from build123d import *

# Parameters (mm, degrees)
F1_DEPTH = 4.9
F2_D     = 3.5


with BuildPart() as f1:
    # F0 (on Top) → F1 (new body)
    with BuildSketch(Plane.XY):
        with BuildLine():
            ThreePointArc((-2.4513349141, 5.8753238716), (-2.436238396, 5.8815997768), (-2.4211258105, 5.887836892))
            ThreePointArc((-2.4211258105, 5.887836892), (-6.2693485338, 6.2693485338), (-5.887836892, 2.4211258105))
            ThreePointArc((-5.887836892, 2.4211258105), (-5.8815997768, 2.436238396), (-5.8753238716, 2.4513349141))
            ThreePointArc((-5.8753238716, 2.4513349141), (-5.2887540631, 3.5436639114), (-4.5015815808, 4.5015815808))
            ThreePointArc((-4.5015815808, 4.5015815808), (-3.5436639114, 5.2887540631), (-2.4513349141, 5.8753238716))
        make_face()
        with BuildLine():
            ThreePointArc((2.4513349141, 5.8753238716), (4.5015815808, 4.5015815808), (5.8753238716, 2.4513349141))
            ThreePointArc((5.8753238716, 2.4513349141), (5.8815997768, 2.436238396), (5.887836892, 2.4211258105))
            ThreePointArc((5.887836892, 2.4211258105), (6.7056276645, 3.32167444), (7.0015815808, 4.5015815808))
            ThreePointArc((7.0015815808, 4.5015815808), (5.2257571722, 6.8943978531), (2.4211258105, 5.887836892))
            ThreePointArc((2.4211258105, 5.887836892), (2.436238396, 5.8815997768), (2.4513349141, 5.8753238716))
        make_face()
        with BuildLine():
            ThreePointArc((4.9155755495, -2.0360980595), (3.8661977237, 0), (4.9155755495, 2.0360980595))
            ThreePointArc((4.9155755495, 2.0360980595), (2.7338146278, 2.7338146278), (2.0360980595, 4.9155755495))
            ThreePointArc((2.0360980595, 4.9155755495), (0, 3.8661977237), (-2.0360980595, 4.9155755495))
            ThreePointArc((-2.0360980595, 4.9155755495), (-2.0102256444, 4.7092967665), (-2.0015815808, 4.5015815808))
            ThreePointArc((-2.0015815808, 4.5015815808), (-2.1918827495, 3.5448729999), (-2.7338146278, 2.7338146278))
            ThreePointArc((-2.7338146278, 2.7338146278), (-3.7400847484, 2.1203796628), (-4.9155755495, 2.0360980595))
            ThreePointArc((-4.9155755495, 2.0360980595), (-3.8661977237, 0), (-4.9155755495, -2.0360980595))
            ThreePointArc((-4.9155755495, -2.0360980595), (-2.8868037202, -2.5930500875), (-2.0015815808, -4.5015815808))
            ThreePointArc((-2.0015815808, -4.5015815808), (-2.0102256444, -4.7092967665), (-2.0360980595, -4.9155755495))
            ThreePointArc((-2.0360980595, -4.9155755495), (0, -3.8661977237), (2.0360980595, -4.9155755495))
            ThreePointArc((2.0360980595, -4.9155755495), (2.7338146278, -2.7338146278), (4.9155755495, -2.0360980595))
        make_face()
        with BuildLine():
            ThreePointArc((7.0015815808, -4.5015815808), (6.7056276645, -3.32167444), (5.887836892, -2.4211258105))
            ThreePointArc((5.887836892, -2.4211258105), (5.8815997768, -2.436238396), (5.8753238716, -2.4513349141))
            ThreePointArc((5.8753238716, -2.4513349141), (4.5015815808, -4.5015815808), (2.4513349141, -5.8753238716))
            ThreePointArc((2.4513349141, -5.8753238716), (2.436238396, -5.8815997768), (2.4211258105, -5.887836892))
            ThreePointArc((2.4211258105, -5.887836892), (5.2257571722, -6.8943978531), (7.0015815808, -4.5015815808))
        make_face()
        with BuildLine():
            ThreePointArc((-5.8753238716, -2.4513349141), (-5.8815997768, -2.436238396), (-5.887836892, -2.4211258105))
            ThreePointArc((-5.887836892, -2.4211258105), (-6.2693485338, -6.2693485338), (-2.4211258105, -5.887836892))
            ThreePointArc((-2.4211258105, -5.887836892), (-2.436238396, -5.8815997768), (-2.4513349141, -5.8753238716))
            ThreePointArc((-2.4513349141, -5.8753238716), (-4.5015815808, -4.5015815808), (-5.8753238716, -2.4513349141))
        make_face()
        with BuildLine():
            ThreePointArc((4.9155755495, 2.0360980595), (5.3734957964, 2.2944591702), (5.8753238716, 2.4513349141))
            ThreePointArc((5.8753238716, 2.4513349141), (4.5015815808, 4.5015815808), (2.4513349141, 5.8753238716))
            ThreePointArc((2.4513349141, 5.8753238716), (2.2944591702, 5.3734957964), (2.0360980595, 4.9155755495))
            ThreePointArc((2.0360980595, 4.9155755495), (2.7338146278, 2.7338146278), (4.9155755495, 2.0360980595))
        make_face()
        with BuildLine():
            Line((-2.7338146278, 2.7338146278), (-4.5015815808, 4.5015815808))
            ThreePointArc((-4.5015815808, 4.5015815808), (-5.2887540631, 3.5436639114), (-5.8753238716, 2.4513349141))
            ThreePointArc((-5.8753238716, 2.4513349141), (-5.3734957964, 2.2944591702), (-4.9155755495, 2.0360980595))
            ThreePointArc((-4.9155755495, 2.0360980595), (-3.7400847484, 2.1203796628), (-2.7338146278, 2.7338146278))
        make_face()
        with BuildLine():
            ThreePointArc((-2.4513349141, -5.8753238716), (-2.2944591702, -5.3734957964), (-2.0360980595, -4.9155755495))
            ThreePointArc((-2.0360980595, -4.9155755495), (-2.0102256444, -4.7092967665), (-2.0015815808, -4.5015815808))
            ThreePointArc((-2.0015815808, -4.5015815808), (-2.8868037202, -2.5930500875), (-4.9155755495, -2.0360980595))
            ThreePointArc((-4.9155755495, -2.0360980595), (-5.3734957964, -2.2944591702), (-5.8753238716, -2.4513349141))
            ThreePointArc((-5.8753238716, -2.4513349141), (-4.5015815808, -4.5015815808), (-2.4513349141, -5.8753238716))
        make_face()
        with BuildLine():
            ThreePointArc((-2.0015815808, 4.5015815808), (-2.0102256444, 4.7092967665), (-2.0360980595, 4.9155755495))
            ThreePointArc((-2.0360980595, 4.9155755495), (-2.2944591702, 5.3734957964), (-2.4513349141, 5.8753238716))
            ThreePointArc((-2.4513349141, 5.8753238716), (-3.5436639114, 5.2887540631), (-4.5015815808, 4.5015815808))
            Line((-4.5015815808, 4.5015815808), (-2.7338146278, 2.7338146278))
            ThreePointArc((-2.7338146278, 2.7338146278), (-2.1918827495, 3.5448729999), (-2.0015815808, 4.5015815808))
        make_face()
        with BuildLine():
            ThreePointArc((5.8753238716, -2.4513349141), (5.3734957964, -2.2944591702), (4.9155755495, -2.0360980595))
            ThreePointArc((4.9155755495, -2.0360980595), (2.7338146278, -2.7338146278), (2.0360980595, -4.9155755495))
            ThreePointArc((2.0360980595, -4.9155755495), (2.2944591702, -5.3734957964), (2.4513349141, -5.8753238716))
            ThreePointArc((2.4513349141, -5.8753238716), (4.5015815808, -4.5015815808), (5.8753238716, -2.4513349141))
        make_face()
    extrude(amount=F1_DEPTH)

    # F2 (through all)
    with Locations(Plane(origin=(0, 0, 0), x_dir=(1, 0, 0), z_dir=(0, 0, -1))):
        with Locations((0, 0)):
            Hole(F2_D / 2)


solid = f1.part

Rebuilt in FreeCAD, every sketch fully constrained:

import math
import FreeCAD as App
import Part
import Sketcher
from FreeCAD import Vector
Q = App.Units.Quantity

doc = App.newDocument("Part")
body = doc.addObject("PartDesign::Body", "Body")

sketch1 = body.newObject("Sketcher::SketchObject", "Sketch")
sketch1.AttachmentSupport = (doc.getObject("XY_Plane"), [""])
sketch1.MapMode = "FlatFace"
sketch1.addGeometry([
    Part.ArcOfCircle(Part.Circle(Vector(0.000005, -0.000013, 0), Vector(0, 0, 1), 6.366211), math.radians(112.352859), math.radians(112.647141)),
    Part.ArcOfCircle(Part.Circle(Vector(-4.501582, 4.501582, 0), Vector(0, 0, 1), 2.5), math.radians(33.676429), math.radians(236.323571)),
    Part.ArcOfCircle(Part.Circle(Vector(0.000013, -0.000005, 0), Vector(0, 0, 1), 6.366211), math.radians(157.352859), math.radians(157.647141)),
    Part.ArcOfCircle(Part.Circle(Vector(-6.366198, 0, 0), Vector(0, 0, 1), 2.5), math.radians(54.531951), math.radians(78.676429)),
    Part.ArcOfCircle(Part.Circle(Vector(-6.366198, 0, 0), Vector(0, 0, 1), 2.5), math.radians(-54.531951), math.radians(54.531951)),
    Part.ArcOfCircle(Part.Circle(Vector(-6.366198, 0, 0), Vector(0, 0, 1), 2.5), math.radians(-78.676429), math.radians(-54.531951)),
    Part.ArcOfCircle(Part.Circle(Vector(0.000013, 0.000005, 0), Vector(0, 0, 1), 6.366211), math.radians(-157.647141), math.radians(-157.352859)),
    Part.ArcOfCircle(Part.Circle(Vector(-4.501582, -4.501582, 0), Vector(0, 0, 1), 2.5), math.radians(123.676429), math.radians(326.323571)),
    Part.ArcOfCircle(Part.Circle(Vector(0.000005, 0.000013, 0), Vector(0, 0, 1), 6.366211), math.radians(-112.647141), math.radians(-112.352859)),
    Part.ArcOfCircle(Part.Circle(Vector(0, -6.366198, 0), Vector(0, 0, 1), 2.5), math.radians(144.531951), math.radians(168.676429)),
    Part.ArcOfCircle(Part.Circle(Vector(0, -6.366198, 0), Vector(0, 0, 1), 2.5), math.radians(35.468049), math.radians(144.531951)),
    Part.ArcOfCircle(Part.Circle(Vector(0, -6.366198, 0), Vector(0, 0, 1), 2.5), math.radians(11.323571), math.radians(35.468049)),
    Part.ArcOfCircle(Part.Circle(Vector(-0.000005, 0.000013, 0), Vector(0, 0, 1), 6.366211), math.radians(-67.647141), math.radians(-67.352859)),
    Part.ArcOfCircle(Part.Circle(Vector(4.501582, -4.501582, 0), Vector(0, 0, 1), 2.5), math.radians(-146.323571), math.radians(0)),
    Part.ArcOfCircle(Part.Circle(Vector(4.501582, -4.501582, 0), Vector(0, 0, 1), 2.5), math.radians(0), math.radians(56.323571)),
    Part.ArcOfCircle(Part.Circle(Vector(-0.000013, 0.000005, 0), Vector(0, 0, 1), 6.366211), math.radians(-22.647141), math.radians(-22.352859)),
    Part.ArcOfCircle(Part.Circle(Vector(6.366198, 0, 0), Vector(0, 0, 1), 2.5), math.radians(-125.468049), math.radians(-101.323571)),
    Part.ArcOfCircle(Part.Circle(Vector(6.366198, 0, 0), Vector(0, 0, 1), 2.5), math.radians(125.468049), math.radians(234.531951)),
    Part.ArcOfCircle(Part.Circle(Vector(6.366198, 0, 0), Vector(0, 0, 1), 2.5), math.radians(101.323571), math.radians(125.468049)),
    Part.ArcOfCircle(Part.Circle(Vector(-0.000013, -0.000005, 0), Vector(0, 0, 1), 6.366211), math.radians(22.352859), math.radians(22.647141)),
    Part.ArcOfCircle(Part.Circle(Vector(4.501582, 4.501582, 0), Vector(0, 0, 1), 2.5), math.radians(-56.323571), math.radians(0)),
    Part.ArcOfCircle(Part.Circle(Vector(4.501582, 4.501582, 0), Vector(0, 0, 1), 2.5), math.radians(0), math.radians(146.323571)),
    Part.ArcOfCircle(Part.Circle(Vector(-0.000005, -0.000013, 0), Vector(0, 0, 1), 6.366211), math.radians(67.352859), math.radians(67.647141)),
    Part.ArcOfCircle(Part.Circle(Vector(0, 6.366198, 0), Vector(0, 0, 1), 2.5), math.radians(-35.468049), math.radians(-11.323571)),
    Part.ArcOfCircle(Part.Circle(Vector(0, 6.366198, 0), Vector(0, 0, 1), 2.5), math.radians(-144.531951), math.radians(-35.468049)),
    Part.ArcOfCircle(Part.Circle(Vector(0, 6.366198, 0), Vector(0, 0, 1), 2.5), math.radians(-168.676429), math.radians(-144.531951)),
], False)
sketch1.addConstraint([
    Sketcher.Constraint("Coincident", 0, 1, 1, 1),
    Sketcher.Constraint("Coincident", 1, 2, 2, 2),
    Sketcher.Constraint("Coincident", 2, 1, 3, 2),
    Sketcher.Constraint("Tangent", 3, 1, 4, 2),
    Sketcher.Constraint("Tangent", 4, 1, 5, 2),
    Sketcher.Constraint("Coincident", 5, 1, 6, 2),
    Sketcher.Constraint("Coincident", 6, 1, 7, 1),
    Sketcher.Constraint("Coincident", 7, 2, 8, 2),
    Sketcher.Constraint("Coincident", 8, 1, 9, 2),
    Sketcher.Constraint("Tangent", 9, 1, 10, 2),
    Sketcher.Constraint("Tangent", 10, 1, 11, 2),
    Sketcher.Constraint("Coincident", 11, 1, 12, 2),
    Sketcher.Constraint("Coincident", 12, 1, 13, 1),
    Sketcher.Constraint("Tangent", 13, 2, 14, 1),
    Sketcher.Constraint("Coincident", 14, 2, 15, 2),
    Sketcher.Constraint("Coincident", 15, 1, 16, 2),
    Sketcher.Constraint("Tangent", 16, 1, 17, 2),
    Sketcher.Constraint("Tangent", 17, 1, 18, 2),
    Sketcher.Constraint("Coincident", 18, 1, 19, 2),
    Sketcher.Constraint("Coincident", 19, 1, 20, 1),
    Sketcher.Constraint("Tangent", 20, 2, 21, 1),
    Sketcher.Constraint("Coincident", 21, 2, 22, 2),
    Sketcher.Constraint("Coincident", 22, 1, 23, 2),
    Sketcher.Constraint("Tangent", 23, 1, 24, 2),
    Sketcher.Constraint("Tangent", 24, 1, 25, 2),
    Sketcher.Constraint("Coincident", 25, 1, 0, 2),
    Sketcher.Constraint("Coincident", 5, 3, 3, 3),
    Sketcher.Constraint("Coincident", 11, 3, 9, 3),
    Sketcher.Constraint("Coincident", 18, 3, 16, 3),
    Sketcher.Constraint("Coincident", 25, 3, 23, 3),
    Sketcher.Constraint("Equal", 0, 2),
    Sketcher.Constraint("Equal", 1, 3),
    Sketcher.Constraint("Equal", 2, 6),
    Sketcher.Constraint("Equal", 5, 7),
    Sketcher.Constraint("Equal", 6, 8),
    Sketcher.Constraint("Equal", 7, 9),
    Sketcher.Constraint("Equal", 8, 12),
    Sketcher.Constraint("Equal", 11, 13),
    Sketcher.Constraint("Equal", 13, 14),
    Sketcher.Constraint("Equal", 12, 15),
    Sketcher.Constraint("Equal", 14, 16),
    Sketcher.Constraint("Equal", 15, 19),
    Sketcher.Constraint("Equal", 18, 20),
    Sketcher.Constraint("Equal", 20, 21),
    Sketcher.Constraint("Equal", 19, 22),
    Sketcher.Constraint("Equal", 21, 23),
    Sketcher.Constraint("Symmetric", 0, 3, 12, 3, -1, 1),
    Sketcher.Constraint("Symmetric", 1, 3, 13, 3, -1, 1),
    Sketcher.Constraint("Symmetric", 2, 3, 15, 3, -1, 1),
    Sketcher.Constraint("Symmetric", 3, 3, 16, 3, -1, 1),
    Sketcher.Constraint("Symmetric", 6, 3, 19, 3, -1, 1),
    Sketcher.Constraint("Symmetric", 7, 3, 20, 3, -1, 1),
    Sketcher.Constraint("Symmetric", 8, 3, 22, 3, -1, 1),
    Sketcher.Constraint("Symmetric", 9, 3, 23, 3, -1, 1),
    Sketcher.Constraint("Symmetric", 8, 3, 12, 3, -2),
    Sketcher.Constraint("Symmetric", 7, 3, 13, 3, -2),
    Sketcher.Constraint("Symmetric", 6, 3, 15, 3, -2),
    Sketcher.Constraint("Symmetric", 9, 1, 10, 1, -2),
    Sketcher.Constraint("Symmetric", 4, 1, 16, 1, -2),
    Sketcher.Constraint("Horizontal", 14, 3, 13, 2),
    Sketcher.Constraint("Horizontal", 3, 1, 17, 1),
    Sketcher.Constraint("Horizontal", 21, 3, 20, 2),
    Sketcher.Constraint("Horizontal", 23, 1, 24, 1),
    Sketcher.Constraint("Vertical", 3, 1, 4, 1),
    Sketcher.Constraint("Vertical", 10, 1, 23, 1),
    Sketcher.Constraint("Radius", 1, Q("2.5 mm")),
    Sketcher.Constraint("Radius", 0, Q("6.366211 mm")),
    Sketcher.Constraint("DistanceY", -1, 1, 3, 1, Q("2.036098 mm")),
    Sketcher.Constraint("DistanceX", 9, 1, -1, 1, Q("2.036098 mm")),
    Sketcher.Constraint("DistanceX", 1, 3, -1, 1, Q("4.501582 mm")),
    Sketcher.Constraint("DistanceY", -1, 1, 1, 3, Q("4.501582 mm")),
    Sketcher.Constraint("DistanceX", 3, 3, 2, 3, Q("6.36621 mm")),
    Sketcher.Constraint("DistanceY", 7, 3, 0, 3, Q("4.501569 mm")),
    Sketcher.Constraint("DistanceY", 9, 3, 8, 3, Q("6.36621 mm")),
    Sketcher.Constraint("DistanceX", 2, 3, 13, 3, Q("4.501569 mm")),
    Sketcher.Constraint("DistanceY", 0, 1, 25, 3, Q("0.478361 mm")),
    Sketcher.Constraint("DistanceX", 3, 3, 1, 2, Q("0.478361 mm")),
])
pad1 = body.newObject("PartDesign::Pad", "Pad")
pad1.Profile = sketch1
pad1.Length = 4.9

sketch2 = body.newObject("Sketcher::SketchObject", "Sketch001")
sketch2.AttachmentSupport = (doc.getObject("XY_Plane"), [""])
sketch2.MapMode = "FlatFace"
sketch2.addGeometry(Part.Circle(Vector(0, 0, 0), Vector(0, 0, 1), 1.8), False)
sketch2.addConstraint([
    Sketcher.Constraint("Coincident", 0, 3, -1, 1),
    Sketcher.Constraint("Diameter", 0, Q("3.5 mm")),
])
doc.recompute()
hole = body.newObject("PartDesign::Hole", "Hole")
hole.Profile = sketch2
hole.ThreadType = "None"
hole.Diameter = 3.5
hole.DepthType = "ThroughAll"
hole.Reversed = True

doc.recompute()
